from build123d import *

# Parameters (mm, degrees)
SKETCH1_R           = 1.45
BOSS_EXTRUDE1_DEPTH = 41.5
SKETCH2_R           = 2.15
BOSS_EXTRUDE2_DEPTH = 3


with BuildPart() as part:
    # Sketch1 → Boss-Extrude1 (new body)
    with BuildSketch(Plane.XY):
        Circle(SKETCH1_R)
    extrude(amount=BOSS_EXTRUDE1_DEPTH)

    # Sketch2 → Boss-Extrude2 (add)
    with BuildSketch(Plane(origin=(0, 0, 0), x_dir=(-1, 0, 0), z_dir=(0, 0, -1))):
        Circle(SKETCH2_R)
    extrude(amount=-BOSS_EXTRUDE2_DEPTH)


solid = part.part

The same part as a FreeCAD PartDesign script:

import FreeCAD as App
import Part
import Sketcher
from FreeCAD import Vector
Q = App.Units.Quantity

doc = App.newDocument("Part")
body = doc.addObject("PartDesign::Body", "Body")

sketch1 = doc.addObject("Sketcher::SketchObject", "Sketch")
body.addObject(sketch1)
sketch1.AttachmentSupport = (doc.XY_Plane, [""])
sketch1.MapMode = "FlatFace"
sketch1.addGeometry(Part.Circle(Vector(0, 0, 0), Vector(0, 0, 1), 1.4), False)
sketch1.addConstraint(Sketcher.Constraint("Coincident", 0, 3, -1, 1))
sketch1.addConstraint(Sketcher.Constraint("Diameter", 0, Q("2.9 mm")))
pad1 = doc.addObject("PartDesign::Pad", "Pad")
body.addObject(pad1)
pad1.Profile = sketch1
pad1.Length = 41.5

sketch2 = doc.addObject("Sketcher::SketchObject", "Sketch001")
body.addObject(sketch2)
sketch2.AttachmentSupport = (doc.XY_Plane, [""])
sketch2.MapMode = "FlatFace"
sketch2.addGeometry(Part.Circle(Vector(0, 0, 0), Vector(0, 0, 1), 2.1), False)
sketch2.addConstraint(Sketcher.Constraint("Coincident", 0, 3, -1, 1))
sketch2.addConstraint(Sketcher.Constraint("Diameter", 0, Q("4.3 mm")))
pad2 = doc.addObject("PartDesign::Pad", "Pad001")
body.addObject(pad2)
pad2.Profile = sketch2
pad2.Length = 3

doc.recompute()
